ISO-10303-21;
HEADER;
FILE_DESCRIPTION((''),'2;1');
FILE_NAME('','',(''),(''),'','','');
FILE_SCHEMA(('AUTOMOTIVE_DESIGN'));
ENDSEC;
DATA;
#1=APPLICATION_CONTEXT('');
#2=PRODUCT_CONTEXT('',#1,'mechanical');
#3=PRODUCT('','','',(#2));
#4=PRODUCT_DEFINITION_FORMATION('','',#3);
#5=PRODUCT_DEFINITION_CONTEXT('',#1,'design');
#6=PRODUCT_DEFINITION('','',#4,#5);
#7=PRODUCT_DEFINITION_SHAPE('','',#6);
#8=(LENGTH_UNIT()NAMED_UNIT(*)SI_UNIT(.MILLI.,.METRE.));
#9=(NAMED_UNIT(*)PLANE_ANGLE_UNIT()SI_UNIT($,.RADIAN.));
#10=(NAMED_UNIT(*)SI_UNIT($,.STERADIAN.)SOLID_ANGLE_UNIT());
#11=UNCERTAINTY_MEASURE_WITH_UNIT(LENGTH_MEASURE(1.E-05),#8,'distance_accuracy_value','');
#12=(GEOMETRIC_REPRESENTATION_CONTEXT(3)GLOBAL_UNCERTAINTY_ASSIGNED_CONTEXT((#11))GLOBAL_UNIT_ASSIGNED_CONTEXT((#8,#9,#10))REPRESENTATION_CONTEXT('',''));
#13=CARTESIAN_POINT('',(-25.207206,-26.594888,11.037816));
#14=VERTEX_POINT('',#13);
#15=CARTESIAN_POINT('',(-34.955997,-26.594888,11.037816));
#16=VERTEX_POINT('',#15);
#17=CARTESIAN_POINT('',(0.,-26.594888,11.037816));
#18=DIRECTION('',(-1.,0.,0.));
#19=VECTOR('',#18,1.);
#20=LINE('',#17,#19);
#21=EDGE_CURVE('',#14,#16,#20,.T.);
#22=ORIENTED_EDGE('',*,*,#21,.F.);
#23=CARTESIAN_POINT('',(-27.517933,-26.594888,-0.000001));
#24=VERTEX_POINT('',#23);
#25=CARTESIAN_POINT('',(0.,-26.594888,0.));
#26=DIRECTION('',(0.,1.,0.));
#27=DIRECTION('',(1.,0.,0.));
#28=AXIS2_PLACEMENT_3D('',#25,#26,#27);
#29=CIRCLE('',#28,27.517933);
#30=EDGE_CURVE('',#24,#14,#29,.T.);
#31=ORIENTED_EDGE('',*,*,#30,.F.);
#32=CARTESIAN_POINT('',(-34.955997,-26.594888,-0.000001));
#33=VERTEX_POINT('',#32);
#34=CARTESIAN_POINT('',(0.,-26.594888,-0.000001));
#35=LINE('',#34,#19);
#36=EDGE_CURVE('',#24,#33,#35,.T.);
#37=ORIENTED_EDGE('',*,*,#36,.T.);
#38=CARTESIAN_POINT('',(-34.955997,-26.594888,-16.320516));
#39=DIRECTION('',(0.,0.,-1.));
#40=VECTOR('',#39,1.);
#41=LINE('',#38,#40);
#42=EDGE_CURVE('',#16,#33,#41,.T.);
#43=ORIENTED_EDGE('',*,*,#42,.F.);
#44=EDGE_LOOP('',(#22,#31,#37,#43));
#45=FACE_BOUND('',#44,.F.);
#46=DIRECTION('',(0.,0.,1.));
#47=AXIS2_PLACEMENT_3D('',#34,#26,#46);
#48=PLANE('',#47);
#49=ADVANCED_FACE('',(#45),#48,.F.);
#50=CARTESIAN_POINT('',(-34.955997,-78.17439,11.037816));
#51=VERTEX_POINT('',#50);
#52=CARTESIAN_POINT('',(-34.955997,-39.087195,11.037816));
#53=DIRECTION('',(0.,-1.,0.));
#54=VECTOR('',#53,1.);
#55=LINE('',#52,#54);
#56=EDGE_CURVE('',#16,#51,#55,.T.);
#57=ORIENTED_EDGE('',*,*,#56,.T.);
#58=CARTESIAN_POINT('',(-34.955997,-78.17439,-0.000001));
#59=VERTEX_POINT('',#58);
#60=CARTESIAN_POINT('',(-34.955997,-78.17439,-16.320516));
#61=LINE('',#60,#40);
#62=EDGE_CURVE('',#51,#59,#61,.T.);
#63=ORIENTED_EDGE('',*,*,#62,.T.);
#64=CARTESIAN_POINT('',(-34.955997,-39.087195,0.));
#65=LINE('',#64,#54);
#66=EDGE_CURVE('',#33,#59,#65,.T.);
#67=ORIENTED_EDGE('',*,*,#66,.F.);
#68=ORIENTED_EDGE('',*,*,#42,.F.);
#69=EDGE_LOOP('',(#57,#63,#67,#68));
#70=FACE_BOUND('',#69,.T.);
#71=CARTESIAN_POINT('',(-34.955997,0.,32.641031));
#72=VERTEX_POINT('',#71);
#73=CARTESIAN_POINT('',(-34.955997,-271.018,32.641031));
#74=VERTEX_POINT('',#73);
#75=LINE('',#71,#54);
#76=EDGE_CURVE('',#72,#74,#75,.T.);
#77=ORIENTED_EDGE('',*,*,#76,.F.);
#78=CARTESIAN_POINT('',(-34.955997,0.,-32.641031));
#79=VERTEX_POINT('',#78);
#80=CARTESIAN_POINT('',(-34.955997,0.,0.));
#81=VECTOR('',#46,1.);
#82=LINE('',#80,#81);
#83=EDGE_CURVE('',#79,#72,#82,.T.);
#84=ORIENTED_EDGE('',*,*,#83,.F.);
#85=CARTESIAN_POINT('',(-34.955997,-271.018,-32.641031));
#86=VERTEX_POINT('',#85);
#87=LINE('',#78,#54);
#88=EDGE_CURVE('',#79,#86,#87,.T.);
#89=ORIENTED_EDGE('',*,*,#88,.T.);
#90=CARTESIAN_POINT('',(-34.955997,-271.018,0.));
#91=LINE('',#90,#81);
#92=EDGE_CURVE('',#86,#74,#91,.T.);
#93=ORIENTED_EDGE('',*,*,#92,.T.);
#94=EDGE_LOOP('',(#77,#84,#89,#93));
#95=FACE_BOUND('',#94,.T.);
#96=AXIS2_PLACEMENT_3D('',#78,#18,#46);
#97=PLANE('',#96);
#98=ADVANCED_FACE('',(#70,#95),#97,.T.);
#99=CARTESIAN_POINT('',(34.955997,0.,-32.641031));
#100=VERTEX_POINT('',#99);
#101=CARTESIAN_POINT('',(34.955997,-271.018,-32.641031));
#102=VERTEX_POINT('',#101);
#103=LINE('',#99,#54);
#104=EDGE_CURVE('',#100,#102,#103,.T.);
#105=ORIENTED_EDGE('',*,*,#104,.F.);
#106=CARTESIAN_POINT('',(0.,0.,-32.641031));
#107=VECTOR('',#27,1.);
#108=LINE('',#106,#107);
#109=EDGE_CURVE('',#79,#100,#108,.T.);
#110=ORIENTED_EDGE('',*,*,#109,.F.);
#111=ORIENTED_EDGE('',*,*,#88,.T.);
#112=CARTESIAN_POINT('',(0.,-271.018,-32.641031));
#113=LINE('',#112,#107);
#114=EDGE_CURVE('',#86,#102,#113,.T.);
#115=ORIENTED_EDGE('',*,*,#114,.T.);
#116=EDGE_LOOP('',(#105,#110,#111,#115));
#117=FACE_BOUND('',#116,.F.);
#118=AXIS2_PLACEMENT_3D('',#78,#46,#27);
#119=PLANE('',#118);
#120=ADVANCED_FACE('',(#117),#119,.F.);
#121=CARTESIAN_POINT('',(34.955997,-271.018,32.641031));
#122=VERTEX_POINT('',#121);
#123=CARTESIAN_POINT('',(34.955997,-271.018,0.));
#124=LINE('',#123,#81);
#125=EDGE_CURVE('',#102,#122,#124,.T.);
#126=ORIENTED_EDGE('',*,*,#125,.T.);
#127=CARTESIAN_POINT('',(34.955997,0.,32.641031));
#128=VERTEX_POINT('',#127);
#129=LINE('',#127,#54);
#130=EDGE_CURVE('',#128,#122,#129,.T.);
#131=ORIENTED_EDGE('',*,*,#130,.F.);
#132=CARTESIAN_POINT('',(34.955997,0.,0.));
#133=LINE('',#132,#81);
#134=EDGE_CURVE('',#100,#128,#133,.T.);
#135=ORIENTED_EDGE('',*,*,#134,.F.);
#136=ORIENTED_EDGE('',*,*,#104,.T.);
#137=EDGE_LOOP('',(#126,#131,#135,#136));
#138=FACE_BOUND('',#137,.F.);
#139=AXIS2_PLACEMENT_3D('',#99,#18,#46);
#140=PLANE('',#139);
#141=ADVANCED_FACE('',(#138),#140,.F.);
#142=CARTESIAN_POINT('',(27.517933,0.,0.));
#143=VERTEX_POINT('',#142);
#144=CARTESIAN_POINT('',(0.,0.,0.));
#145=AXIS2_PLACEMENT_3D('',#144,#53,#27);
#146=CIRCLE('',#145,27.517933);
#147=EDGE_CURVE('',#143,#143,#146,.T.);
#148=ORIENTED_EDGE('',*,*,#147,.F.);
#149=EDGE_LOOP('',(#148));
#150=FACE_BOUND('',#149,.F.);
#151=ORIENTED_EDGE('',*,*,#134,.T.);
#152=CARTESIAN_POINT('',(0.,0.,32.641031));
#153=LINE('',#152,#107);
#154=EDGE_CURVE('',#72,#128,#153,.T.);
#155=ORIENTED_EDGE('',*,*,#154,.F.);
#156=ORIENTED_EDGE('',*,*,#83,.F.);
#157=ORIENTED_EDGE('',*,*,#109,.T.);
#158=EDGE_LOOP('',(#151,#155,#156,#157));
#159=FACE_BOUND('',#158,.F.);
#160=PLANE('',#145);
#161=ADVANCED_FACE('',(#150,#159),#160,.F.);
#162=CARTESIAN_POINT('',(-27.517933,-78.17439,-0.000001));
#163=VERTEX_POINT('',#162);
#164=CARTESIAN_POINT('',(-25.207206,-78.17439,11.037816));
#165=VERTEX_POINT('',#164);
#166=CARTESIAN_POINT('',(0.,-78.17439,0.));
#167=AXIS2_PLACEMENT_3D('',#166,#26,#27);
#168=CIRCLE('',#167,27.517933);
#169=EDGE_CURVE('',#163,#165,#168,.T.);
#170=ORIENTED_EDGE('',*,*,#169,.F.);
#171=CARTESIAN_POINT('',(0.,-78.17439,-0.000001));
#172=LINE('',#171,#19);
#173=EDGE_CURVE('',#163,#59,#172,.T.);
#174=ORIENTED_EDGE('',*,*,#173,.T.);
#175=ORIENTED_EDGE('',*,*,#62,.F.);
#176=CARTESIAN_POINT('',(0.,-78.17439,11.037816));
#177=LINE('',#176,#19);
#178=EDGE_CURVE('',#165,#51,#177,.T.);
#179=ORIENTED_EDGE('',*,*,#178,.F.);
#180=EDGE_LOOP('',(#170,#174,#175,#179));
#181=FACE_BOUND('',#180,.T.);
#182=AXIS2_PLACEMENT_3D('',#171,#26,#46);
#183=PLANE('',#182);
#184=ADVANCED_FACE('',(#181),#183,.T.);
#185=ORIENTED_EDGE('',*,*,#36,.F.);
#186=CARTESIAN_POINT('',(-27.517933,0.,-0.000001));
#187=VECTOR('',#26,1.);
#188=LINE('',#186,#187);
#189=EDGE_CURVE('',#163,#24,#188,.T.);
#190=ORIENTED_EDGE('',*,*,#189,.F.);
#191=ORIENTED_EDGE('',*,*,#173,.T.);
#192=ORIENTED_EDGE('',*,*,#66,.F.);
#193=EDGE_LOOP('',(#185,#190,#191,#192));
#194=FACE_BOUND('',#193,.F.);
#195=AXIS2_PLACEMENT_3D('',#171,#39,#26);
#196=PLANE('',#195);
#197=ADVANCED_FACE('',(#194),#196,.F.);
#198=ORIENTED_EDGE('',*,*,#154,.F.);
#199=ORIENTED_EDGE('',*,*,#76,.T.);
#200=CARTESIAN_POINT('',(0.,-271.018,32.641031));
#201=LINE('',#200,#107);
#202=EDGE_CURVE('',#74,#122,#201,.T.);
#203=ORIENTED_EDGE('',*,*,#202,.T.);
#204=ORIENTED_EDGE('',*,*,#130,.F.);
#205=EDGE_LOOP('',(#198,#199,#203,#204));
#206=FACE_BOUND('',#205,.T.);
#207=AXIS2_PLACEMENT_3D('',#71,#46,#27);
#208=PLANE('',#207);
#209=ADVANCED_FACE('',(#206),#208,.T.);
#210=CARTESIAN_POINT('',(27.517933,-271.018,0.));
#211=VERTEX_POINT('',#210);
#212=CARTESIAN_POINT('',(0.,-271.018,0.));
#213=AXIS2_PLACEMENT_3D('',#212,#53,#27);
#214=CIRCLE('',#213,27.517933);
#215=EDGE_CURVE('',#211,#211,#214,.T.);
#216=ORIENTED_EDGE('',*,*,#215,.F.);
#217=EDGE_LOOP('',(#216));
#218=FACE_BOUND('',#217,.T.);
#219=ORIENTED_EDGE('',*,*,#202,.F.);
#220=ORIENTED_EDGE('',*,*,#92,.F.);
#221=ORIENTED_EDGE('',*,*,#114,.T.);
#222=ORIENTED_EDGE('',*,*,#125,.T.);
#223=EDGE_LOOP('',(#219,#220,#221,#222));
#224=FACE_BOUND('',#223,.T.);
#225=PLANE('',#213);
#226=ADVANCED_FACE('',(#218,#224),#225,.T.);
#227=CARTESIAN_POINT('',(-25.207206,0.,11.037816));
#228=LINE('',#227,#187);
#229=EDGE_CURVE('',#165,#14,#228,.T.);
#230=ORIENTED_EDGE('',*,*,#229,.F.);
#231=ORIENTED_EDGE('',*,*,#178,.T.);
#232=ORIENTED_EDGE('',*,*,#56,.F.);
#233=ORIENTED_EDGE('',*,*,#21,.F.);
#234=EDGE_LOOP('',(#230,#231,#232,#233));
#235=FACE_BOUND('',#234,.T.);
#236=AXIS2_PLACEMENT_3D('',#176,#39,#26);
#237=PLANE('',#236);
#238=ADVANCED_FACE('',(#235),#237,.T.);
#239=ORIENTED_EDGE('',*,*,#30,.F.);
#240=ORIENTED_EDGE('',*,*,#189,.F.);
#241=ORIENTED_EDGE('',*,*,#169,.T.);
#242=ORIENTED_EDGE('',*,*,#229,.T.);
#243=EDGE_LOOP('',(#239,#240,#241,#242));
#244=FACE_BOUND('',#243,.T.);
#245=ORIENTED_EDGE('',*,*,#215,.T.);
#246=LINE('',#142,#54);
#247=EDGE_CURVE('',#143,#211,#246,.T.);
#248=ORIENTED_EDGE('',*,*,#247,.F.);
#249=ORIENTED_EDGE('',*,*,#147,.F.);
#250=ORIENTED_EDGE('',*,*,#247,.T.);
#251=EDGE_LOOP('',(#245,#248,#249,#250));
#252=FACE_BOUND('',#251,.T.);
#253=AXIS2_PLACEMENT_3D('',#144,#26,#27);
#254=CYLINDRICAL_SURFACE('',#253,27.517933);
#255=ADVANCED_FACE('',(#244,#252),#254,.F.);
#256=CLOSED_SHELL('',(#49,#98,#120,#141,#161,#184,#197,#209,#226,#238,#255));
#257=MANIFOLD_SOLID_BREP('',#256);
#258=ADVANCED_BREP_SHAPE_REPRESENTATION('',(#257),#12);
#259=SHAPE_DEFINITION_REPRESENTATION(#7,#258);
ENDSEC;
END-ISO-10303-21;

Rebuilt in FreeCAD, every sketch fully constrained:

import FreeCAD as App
import Part
import Sketcher
Q = App.Units.Quantity


def add_polygon(sketch, points):
    """Adds a closed chain of lines whose ends are joined by coincident constraints."""
    first, n = sketch.GeometryCount, len(points)
    for a, b in zip(points, points[1:] + points[:1]):
        sketch.addGeometry(Part.LineSegment(App.Vector(*a, 0), App.Vector(*b, 0)), False)
    for i in range(n):
        sketch.addConstraint(Sketcher.Constraint("Coincident", first + i, 2, first + (i + 1) % n, 1))

doc = App.newDocument("Part")
params = doc.addObject("Spreadsheet::Sheet", "Params")
for row, (alias, value) in enumerate([
    ("pad1_length", "10.67 in"),
    ("pocket1_length", "2.69 in"),
], start=1):
    params.set(f"A{row}", alias)
    params.set(f"B{row}", "=" + value)
    params.setAlias(f"B{row}", alias)

body = doc.addObject("PartDesign::Body", "Body")

# Sketch on XZ plane
sketch1 = body.newObject("Sketcher::SketchObject", "Sketch")
sketch1.AttachmentSupport = (doc.getObject("XZ_Plane"), [""])
sketch1.MapMode = "FlatFace"
add_polygon(sketch1, [(-35, 33), (-35, -33), (35, -33), (35, 33)])  # lines 0-3
sketch1.addGeometry(Part.Circle(App.Vector(0, 0, 0), App.Vector(0, 0, 1), 28), False)  # 4
sketch1.addConstraint([
    Sketcher.Constraint("Vertical", 0),
    Sketcher.Constraint("Horizontal", 1),
    Sketcher.Constraint("Vertical", 2),
    Sketcher.Constraint("Horizontal", 3),
    Sketcher.Constraint("Coincident", 4, 3, -1, 1),
    Sketcher.Constraint("Symmetric", 0, 2, 2, 2, -1, 1),
    Sketcher.Constraint("Diameter", 4, Q("55.035866 mm")),
    Sketcher.Constraint("DistanceY", 0, 2, 0, 1, Q("65.282062 mm")),
    Sketcher.Constraint("DistanceX", 1, 1, 1, 2, Q("69.911994 mm")),
])
pad1 = body.newObject("PartDesign::Pad", "Pad")
pad1.Profile = sketch1
pad1.setExpression("Length", "Params.pad1_length")

# Sketch on YZ plane
sketch2 = body.newObject("Sketcher::SketchObject", "Sketch001")
sketch2.AttachmentSupport = (doc.getObject("YZ_Plane"), [""])
sketch2.MapMode = "FlatFace"
add_polygon(sketch2, [(-78, 11), (-78, 0), (-27, 0), (-27, 11)])  # lines 0-3
sketch2.addConstraint([
    Sketcher.Constraint("Vertical", 0),
    Sketcher.Constraint("Horizontal", 1),
    Sketcher.Constraint("Vertical", 2),
    Sketcher.Constraint("Horizontal", 3),
    Sketcher.Constraint("PointOnObject", 0, 2, -1),
    Sketcher.Constraint("DistanceX", 1, 1, 1, 2, Q("51.579502 mm")),
    Sketcher.Constraint("DistanceY", 0, 2, 0, 1, Q("11.037817 mm")),
    Sketcher.Constraint("DistanceX", 0, 2, -1, 1, Q("78.17439 mm")),
])
pocket1 = body.newObject("PartDesign::Pocket", "Pocket")
pocket1.Profile = sketch2
pocket1.setExpression("Length", "Params.pocket1_length")

doc.recompute()
